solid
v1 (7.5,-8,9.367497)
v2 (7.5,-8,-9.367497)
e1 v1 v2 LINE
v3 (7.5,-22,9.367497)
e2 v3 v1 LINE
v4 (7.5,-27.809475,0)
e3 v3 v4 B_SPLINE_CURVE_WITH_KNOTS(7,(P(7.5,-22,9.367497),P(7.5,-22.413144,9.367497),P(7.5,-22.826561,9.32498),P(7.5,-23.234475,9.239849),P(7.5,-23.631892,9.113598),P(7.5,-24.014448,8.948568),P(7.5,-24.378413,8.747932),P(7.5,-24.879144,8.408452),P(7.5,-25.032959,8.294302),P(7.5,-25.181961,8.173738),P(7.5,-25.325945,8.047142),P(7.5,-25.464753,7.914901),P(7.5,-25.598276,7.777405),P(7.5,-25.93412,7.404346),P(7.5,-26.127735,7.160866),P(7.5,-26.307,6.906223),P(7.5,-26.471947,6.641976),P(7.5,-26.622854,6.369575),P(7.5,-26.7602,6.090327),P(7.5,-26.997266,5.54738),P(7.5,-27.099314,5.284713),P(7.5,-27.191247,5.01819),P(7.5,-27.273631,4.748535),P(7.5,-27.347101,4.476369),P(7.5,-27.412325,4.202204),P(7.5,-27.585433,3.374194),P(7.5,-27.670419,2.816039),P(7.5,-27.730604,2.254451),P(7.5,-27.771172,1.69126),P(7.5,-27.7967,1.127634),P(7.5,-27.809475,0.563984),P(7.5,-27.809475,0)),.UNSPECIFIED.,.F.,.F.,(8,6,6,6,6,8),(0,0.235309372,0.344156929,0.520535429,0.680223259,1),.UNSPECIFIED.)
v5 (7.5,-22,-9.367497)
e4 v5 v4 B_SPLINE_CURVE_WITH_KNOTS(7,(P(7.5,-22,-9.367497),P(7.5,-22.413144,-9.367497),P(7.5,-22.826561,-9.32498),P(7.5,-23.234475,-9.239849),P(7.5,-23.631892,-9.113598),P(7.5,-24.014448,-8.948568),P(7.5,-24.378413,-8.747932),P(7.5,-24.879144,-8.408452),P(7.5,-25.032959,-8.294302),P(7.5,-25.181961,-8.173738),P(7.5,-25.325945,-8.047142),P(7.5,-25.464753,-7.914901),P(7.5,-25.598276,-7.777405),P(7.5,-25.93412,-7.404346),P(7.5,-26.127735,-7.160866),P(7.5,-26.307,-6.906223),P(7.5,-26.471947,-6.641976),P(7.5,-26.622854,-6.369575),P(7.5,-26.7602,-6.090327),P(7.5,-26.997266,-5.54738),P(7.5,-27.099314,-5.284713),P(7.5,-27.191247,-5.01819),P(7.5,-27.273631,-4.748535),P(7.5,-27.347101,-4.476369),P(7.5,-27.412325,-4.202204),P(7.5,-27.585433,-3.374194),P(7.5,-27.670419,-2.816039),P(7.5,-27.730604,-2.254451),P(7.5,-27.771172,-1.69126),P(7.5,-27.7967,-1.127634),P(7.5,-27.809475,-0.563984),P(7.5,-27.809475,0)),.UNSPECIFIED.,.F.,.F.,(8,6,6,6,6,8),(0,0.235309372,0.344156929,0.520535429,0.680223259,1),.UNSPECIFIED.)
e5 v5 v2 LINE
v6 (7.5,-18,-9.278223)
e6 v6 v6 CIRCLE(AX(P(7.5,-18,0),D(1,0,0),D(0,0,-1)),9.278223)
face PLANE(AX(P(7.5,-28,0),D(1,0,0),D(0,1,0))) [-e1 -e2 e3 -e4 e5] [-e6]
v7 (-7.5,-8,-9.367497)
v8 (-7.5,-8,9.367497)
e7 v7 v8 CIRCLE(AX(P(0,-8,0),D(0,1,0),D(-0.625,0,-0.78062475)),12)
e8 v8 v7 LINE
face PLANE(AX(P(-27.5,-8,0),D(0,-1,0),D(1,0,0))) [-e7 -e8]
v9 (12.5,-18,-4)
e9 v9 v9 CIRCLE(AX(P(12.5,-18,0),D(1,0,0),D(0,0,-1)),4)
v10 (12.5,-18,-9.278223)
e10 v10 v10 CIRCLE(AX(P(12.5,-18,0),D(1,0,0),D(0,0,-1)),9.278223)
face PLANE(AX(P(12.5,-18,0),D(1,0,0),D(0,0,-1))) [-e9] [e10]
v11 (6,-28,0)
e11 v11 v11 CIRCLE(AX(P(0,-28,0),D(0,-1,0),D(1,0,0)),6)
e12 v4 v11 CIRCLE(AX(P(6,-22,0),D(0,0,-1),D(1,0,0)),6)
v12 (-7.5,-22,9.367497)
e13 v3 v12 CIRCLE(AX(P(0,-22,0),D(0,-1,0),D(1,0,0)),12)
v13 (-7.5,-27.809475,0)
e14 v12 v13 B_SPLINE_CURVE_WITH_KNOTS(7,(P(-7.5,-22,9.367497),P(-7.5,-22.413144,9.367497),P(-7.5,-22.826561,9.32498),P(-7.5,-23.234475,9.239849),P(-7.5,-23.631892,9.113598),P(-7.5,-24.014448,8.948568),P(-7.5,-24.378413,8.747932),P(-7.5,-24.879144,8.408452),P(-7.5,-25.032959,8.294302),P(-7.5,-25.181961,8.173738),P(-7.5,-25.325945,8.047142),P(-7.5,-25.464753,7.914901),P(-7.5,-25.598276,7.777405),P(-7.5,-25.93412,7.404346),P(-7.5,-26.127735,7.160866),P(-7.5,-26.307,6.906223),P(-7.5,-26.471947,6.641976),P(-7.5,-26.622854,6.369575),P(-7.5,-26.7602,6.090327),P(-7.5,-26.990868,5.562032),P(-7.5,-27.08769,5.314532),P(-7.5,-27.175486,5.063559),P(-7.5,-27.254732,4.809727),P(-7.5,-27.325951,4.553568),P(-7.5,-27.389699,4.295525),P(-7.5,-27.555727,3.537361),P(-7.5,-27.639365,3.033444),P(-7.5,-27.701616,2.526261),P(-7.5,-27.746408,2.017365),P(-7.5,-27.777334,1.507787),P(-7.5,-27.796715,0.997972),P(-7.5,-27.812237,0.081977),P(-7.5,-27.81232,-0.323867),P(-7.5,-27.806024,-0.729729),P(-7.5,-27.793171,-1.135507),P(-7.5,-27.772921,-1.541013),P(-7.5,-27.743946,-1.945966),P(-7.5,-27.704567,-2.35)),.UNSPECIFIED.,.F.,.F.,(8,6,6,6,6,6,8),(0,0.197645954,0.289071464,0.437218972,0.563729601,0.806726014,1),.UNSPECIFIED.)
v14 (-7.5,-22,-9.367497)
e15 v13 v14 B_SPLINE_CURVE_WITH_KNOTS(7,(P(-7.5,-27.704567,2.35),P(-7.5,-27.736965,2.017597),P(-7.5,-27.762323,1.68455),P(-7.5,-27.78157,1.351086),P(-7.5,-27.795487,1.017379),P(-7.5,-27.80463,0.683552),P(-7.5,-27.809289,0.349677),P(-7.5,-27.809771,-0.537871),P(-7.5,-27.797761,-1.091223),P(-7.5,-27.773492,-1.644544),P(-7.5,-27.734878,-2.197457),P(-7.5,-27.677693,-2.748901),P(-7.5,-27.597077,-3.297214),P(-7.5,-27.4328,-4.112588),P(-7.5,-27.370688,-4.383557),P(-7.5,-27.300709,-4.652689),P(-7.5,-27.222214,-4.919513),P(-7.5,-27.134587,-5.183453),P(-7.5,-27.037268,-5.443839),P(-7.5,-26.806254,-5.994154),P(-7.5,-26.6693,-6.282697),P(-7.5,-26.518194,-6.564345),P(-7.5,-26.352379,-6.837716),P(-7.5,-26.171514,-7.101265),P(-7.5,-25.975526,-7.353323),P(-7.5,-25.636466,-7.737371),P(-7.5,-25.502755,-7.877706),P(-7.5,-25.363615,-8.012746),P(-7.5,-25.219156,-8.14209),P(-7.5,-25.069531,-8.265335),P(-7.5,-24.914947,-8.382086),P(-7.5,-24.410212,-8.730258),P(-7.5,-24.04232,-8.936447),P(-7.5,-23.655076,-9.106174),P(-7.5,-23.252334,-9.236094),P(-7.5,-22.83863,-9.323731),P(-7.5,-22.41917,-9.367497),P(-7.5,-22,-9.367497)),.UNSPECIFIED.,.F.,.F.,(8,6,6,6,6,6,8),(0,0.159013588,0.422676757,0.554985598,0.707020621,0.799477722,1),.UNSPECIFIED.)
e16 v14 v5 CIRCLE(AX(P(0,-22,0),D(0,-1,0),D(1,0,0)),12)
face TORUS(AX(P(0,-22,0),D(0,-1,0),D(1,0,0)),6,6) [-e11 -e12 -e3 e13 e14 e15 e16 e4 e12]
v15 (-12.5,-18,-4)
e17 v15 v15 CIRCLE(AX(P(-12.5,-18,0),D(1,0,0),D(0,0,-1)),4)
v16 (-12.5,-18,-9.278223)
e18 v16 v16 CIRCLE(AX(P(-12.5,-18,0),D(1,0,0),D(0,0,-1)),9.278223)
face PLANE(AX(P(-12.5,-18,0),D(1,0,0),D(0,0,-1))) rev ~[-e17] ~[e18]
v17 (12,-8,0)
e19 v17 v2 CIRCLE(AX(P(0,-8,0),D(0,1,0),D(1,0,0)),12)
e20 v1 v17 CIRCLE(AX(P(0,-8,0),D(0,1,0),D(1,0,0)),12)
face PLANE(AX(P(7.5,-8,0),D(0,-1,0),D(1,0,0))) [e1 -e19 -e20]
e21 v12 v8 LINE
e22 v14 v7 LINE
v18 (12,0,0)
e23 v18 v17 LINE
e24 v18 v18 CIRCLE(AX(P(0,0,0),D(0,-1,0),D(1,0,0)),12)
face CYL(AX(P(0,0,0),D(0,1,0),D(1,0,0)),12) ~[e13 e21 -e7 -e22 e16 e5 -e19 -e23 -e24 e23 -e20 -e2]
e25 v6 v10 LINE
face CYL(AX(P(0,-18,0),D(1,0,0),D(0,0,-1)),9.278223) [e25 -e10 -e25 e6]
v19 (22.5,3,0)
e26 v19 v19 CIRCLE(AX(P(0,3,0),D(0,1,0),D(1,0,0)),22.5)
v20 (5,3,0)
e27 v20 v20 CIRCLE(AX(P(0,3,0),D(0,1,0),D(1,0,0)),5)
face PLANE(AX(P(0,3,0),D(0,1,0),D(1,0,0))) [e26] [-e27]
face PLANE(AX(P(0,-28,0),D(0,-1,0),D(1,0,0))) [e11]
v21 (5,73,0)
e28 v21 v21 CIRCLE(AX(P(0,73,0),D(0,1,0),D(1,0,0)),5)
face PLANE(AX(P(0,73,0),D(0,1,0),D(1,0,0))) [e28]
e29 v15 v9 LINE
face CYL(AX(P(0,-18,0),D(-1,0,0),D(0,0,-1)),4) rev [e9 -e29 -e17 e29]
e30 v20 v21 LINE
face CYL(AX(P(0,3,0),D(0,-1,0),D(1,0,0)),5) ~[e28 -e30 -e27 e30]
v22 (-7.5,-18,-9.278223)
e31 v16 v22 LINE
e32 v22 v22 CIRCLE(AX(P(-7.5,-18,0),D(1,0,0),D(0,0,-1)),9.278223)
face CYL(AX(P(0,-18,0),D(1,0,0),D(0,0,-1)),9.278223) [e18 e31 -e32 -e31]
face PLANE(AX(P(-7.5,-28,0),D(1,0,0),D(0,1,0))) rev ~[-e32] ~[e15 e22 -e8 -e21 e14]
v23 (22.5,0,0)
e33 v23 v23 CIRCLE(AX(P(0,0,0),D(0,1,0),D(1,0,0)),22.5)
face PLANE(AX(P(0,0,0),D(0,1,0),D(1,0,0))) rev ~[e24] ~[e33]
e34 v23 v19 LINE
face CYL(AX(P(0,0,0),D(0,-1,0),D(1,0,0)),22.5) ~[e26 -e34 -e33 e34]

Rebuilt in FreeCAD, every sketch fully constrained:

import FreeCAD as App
import Part
import Sketcher
Q = App.Units.Quantity


def edges_at(feature, points):
    """Names of the edges that pass closest to the given points."""
    edges = feature.Shape.Edges
    near = lambda p: min(range(len(edges)), key=lambda i: edges[i].distToShape(Part.Vertex(*p))[0])
    return sorted({f"Edge{near(p) + 1}" for p in points})


def add_polygon(sketch, points):
    """Adds a closed chain of lines whose ends are joined by coincident constraints."""
    first, n = sketch.GeometryCount, len(points)
    for a, b in zip(points, points[1:] + points[:1]):
        sketch.addGeometry(Part.LineSegment(App.Vector(*a, 0), App.Vector(*b, 0)), False)
    for i in range(n):
        sketch.addConstraint(Sketcher.Constraint("Coincident", first + i, 2, first + (i + 1) % n, 1))

doc = App.newDocument("Part")
params = doc.addObject("Spreadsheet::Sheet", "Params")
for row, (alias, value) in enumerate([
    ("sketch1_diameter", "45 mm"),
    ("pad1_length", "3 mm"),
    ("sketch2_diameter", "10 mm"),
    ("pad2_length", "70 mm"),
    ("sketch3_diameter", "24 mm"),
    ("pad3_length", "28 mm"),
    ("fillet_radius", "6 mm"),
    ("sketch4_width", "20 mm"),
    ("sketch5_diameter", "8 mm"),
    ("pocket2_length", "28 mm"),
    ("sketch6_diameter", "8 mm"),
    ("pad4_length", "25 mm"),
], start=1):
    params.set(f"A{row}", alias)
    params.set(f"B{row}", "=" + value)
    params.setAlias(f"B{row}", alias)

body = doc.addObject("PartDesign::Body", "Body")

sketch1 = body.newObject("Sketcher::SketchObject", "Sketch")
sketch1.AttachmentSupport = (doc.getObject("XZ_Plane"), [""])
sketch1.MapMode = "FlatFace"
sketch1.addGeometry(Part.Circle(App.Vector(0, 0, 0), App.Vector(0, 0, 1), 22), False)
sketch1.addConstraint(Sketcher.Constraint("Coincident", 0, 3, -1, 1))
sketch1.addConstraint(Sketcher.Constraint("Diameter", 0, Q("45 mm")))
sketch1.setExpression("Constraints[1]", "Params.sketch1_diameter")
pad1 = body.newObject("PartDesign::Pad", "Pad")
pad1.Profile = sketch1
pad1.setExpression("Length", "Params.pad1_length")
pad1.Reversed = True

sketch2 = body.newObject("Sketcher::SketchObject", "Sketch001")
sketch2.AttachmentSupport = (doc.getObject("XZ_Plane"), [""])
sketch2.MapMode = "FlatFace"
sketch2.AttachmentOffset = App.Placement(App.Vector(0, 0, -3), App.Rotation())
sketch2.addGeometry(Part.Circle(App.Vector(0, 0, 0), App.Vector(0, 0, 1), 5), False)
sketch2.addConstraint(Sketcher.Constraint("Coincident", 0, 3, -1, 1))
sketch2.addConstraint(Sketcher.Constraint("Diameter", 0, Q("10 mm")))
sketch2.setExpression("Constraints[1]", "Params.sketch2_diameter")
pad2 = body.newObject("PartDesign::Pad", "Pad001")
pad2.Profile = sketch2
pad2.setExpression("Length", "Params.pad2_length")
pad2.Reversed = True

sketch3 = body.newObject("Sketcher::SketchObject", "Sketch002")
sketch3.AttachmentSupport = (doc.getObject("XZ_Plane"), [""])
sketch3.MapMode = "FlatFace"
sketch3.addGeometry(Part.Circle(App.Vector(0, 0, 0), App.Vector(0, 0, 1), 12), False)
sketch3.addConstraint(Sketcher.Constraint("Coincident", 0, 3, -1, 1))
sketch3.addConstraint(Sketcher.Constraint("Diameter", 0, Q("24 mm")))
sketch3.setExpression("Constraints[1]", "Params.sketch3_diameter")
pad3 = body.newObject("PartDesign::Pad", "Pad002")
pad3.Profile = sketch3
pad3.setExpression("Length", "Params.pad3_length")
doc.recompute()

fillet = body.newObject("PartDesign::Fillet", "Fillet")
fillet.Base = (pad3, edges_at(pad3, [(-12, -28, 0)]))
fillet.setExpression("Radius", "Params.fillet_radius")

sketch4 = body.newObject("Sketcher::SketchObject", "Sketch003")
sketch4.AttachmentSupport = (doc.getObject("XY_Plane"), [""])
sketch4.MapMode = "FlatFace"
add_polygon(sketch4, [(8, -8), (8, -28), (28, -28), (28, -8)])
add_polygon(sketch4, [(-28, -8), (-28, -28), (-8, -28), (-8, -8)])
sketch4.addConstraint(Sketcher.Constraint("Vertical", 0))
sketch4.addConstraint(Sketcher.Constraint("Horizontal", 1))
sketch4.addConstraint(Sketcher.Constraint("Vertical", 2))
sketch4.addConstraint(Sketcher.Constraint("Horizontal", 3))
sketch4.addConstraint(Sketcher.Constraint("Vertical", 4))
sketch4.addConstraint(Sketcher.Constraint("Horizontal", 5))
sketch4.addConstraint(Sketcher.Constraint("Vertical", 6))
sketch4.addConstraint(Sketcher.Constraint("Horizontal", 7))
sketch4.addConstraint(Sketcher.Constraint("Symmetric", 1, 2, 4, 2, -2))
sketch4.addConstraint(Sketcher.Constraint("Symmetric", 3, 2, 6, 2, -2))
sketch4.addConstraint(Sketcher.Constraint("Equal", 7, 0))
sketch4.addConstraint(Sketcher.Constraint("DistanceX", 1, 1, 1, 2, Q("20 mm")))
sketch4.addConstraint(Sketcher.Constraint("DistanceY", 0, 2, -1, 1, Q("28 mm")))
sketch4.addConstraint(Sketcher.Constraint("DistanceX", 4, 2, 0, 2, Q("35 mm")))
sketch4.setExpression("Constraints[19]", "Params.sketch4_width")
pocket1 = body.newObject("PartDesign::Pocket", "Pocket")
pocket1.Profile = sketch4
pocket1.Type = "ThroughAll"
pocket1.Midplane = True

sketch5 = body.newObject("Sketcher::SketchObject", "Sketch004")
sketch5.AttachmentSupport = (doc.getObject("YZ_Plane"), [""])
sketch5.MapMode = "FlatFace"
sketch5.AttachmentOffset = App.Placement(App.Vector(0, 0, 7.5), App.Rotation())
sketch5.addGeometry(Part.Circle(App.Vector(-18, 0, 0), App.Vector(0, 0, 1), 4), False)
sketch5.addConstraint(Sketcher.Constraint("PointOnObject", 0, 3, -1))
sketch5.addConstraint(Sketcher.Constraint("Diameter", 0, Q("8 mm")))
sketch5.addConstraint(Sketcher.Constraint("DistanceX", 0, 3, -1, 1, Q("18 mm")))
sketch5.setExpression("Constraints[1]", "Params.sketch5_diameter")
pocket2 = body.newObject("PartDesign::Pocket", "Pocket001")
pocket2.Profile = sketch5
pocket2.setExpression("Length", "Params.pocket2_length")

sketch6 = body.newObject("Sketcher::SketchObject", "Sketch005")
sketch6.AttachmentSupport = (doc.getObject("YZ_Plane"), [""])
sketch6.MapMode = "FlatFace"
sketch6.addGeometry(Part.Circle(App.Vector(-18, 0, 0), App.Vector(0, 0, 1), 9.3), False)
sketch6.addGeometry(Part.Circle(App.Vector(-18, 0, 0), App.Vector(0, 0, 1), 4), False)
sketch6.addConstraint(Sketcher.Constraint("Coincident", 1, 3, 0, 3))
sketch6.addConstraint(Sketcher.Constraint("PointOnObject", 0, 3, -1))
sketch6.addConstraint(Sketcher.Constraint("Diameter", 1, Q("8 mm")))
sketch6.addConstraint(Sketcher.Constraint("DistanceX", 0, 3, -1, 1, Q("18 mm")))
sketch6.addConstraint(Sketcher.Constraint("Diameter", 0, Q("18.556446 mm")))
sketch6.setExpression("Constraints[2]", "Params.sketch6_diameter")
pad4 = body.newObject("PartDesign::Pad", "Pad003")
pad4.Profile = sketch6
pad4.setExpression("Length", "Params.pad4_length")
pad4.Midplane = True

doc.recompute()
